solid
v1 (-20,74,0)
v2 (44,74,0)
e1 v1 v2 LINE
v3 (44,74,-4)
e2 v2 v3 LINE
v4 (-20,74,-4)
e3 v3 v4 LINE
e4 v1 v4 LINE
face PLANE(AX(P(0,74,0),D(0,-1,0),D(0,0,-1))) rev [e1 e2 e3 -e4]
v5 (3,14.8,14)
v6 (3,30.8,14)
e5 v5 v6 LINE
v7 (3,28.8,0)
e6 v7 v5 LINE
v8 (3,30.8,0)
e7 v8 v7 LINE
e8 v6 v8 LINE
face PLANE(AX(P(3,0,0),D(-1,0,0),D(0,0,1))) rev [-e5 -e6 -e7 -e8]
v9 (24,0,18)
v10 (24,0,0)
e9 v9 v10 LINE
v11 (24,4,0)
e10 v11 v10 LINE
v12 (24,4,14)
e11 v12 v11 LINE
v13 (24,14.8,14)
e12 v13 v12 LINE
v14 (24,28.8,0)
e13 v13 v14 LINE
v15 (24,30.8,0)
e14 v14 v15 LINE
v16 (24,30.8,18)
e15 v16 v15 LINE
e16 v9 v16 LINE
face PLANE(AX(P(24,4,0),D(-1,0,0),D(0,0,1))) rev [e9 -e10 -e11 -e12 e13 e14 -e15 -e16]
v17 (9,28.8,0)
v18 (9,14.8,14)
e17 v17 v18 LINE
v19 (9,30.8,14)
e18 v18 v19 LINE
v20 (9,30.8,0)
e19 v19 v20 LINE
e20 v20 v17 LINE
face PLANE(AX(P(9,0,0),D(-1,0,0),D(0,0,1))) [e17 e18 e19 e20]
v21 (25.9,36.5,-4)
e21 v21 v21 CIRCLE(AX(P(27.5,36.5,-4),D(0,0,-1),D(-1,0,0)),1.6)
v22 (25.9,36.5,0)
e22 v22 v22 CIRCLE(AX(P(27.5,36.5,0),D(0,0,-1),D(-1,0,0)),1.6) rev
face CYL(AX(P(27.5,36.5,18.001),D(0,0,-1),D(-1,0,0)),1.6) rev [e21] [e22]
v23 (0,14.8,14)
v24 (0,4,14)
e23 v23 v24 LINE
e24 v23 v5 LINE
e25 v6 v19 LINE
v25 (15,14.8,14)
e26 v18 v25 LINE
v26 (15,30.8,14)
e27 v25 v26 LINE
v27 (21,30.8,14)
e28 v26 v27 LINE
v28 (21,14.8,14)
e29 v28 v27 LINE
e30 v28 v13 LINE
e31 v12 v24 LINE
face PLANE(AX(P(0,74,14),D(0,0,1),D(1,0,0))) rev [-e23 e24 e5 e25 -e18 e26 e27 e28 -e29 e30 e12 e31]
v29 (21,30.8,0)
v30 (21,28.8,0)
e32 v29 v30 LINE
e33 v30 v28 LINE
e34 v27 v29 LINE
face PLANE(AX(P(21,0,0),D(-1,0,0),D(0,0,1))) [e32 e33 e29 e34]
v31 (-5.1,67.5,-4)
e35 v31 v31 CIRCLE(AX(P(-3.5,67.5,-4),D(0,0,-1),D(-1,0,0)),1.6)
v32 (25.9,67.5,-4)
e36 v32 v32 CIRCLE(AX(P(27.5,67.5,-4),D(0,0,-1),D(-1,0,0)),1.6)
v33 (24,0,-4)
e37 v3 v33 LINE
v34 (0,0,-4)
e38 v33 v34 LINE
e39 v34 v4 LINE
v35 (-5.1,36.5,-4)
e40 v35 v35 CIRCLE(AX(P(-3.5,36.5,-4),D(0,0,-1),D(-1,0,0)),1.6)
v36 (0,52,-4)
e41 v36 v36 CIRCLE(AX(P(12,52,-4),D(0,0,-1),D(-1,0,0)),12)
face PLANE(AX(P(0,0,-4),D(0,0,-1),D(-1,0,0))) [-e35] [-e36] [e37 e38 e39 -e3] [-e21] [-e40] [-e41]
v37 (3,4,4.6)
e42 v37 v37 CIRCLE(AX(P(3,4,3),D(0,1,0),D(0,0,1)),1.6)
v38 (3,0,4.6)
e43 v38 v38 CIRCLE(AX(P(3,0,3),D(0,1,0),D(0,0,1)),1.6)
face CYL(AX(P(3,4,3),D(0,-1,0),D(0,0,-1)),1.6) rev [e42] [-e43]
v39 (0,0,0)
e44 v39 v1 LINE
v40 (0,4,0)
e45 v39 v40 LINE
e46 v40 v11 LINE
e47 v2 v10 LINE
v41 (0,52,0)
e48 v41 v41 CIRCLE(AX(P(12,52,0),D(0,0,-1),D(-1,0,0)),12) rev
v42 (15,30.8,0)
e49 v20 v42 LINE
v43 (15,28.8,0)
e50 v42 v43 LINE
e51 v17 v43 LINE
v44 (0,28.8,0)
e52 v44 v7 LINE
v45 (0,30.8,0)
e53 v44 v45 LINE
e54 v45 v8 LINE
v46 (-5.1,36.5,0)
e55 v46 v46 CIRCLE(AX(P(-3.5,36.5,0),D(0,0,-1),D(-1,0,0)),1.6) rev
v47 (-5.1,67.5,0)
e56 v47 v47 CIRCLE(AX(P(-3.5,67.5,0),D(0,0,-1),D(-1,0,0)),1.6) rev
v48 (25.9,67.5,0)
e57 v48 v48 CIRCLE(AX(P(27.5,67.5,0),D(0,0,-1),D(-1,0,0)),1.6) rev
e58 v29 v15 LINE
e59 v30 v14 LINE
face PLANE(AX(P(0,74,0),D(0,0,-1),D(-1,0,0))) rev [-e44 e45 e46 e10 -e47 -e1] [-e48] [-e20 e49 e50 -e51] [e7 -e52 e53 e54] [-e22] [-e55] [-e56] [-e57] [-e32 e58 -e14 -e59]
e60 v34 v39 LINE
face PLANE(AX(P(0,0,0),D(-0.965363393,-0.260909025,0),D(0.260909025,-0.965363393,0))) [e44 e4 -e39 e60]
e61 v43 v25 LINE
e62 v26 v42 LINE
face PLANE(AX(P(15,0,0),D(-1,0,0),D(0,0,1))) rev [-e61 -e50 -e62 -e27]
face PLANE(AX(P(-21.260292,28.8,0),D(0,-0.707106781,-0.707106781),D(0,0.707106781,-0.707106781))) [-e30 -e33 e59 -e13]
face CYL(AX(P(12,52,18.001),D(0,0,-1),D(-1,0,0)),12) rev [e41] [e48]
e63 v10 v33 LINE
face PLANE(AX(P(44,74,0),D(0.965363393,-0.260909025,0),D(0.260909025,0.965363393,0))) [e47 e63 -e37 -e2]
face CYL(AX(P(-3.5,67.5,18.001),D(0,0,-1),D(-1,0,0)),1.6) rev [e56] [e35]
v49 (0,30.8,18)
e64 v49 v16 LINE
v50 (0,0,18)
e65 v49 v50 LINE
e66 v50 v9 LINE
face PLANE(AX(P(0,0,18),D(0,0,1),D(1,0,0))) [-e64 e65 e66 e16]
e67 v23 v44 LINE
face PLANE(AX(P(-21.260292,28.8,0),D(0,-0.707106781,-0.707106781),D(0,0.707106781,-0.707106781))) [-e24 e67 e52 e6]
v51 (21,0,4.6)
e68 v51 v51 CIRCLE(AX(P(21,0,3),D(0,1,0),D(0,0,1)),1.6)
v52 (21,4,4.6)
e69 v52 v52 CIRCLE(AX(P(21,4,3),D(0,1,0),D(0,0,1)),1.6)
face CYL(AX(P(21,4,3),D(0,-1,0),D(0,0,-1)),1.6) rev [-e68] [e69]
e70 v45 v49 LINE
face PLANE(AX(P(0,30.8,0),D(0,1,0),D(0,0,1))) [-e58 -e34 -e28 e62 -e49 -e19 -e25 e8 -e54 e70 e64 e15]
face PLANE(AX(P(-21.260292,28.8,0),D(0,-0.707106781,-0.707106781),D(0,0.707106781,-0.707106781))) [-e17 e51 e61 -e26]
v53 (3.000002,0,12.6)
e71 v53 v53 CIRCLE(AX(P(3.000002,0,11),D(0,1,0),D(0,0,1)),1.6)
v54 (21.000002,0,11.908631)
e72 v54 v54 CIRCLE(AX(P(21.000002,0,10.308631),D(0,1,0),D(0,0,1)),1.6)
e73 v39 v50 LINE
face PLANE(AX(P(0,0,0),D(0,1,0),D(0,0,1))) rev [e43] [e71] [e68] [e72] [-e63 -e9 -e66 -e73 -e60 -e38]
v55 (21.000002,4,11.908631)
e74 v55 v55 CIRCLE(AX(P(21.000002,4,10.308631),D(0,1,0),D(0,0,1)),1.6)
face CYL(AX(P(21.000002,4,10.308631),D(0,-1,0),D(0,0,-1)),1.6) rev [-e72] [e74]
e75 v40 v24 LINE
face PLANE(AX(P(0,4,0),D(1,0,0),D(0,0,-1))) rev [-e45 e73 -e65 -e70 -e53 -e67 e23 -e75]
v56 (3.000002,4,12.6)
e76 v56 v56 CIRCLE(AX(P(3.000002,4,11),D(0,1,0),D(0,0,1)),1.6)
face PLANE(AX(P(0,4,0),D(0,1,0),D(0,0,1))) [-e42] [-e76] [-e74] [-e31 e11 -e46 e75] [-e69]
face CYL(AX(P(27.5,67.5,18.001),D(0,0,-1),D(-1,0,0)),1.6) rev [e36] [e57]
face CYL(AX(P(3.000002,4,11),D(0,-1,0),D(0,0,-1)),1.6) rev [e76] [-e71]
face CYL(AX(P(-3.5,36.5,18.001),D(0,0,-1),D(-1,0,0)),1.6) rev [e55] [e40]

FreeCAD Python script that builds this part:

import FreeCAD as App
import Part
import Sketcher


def add_polygon(sketch, points):
    """Adds a closed chain of lines whose ends are joined by coincident constraints."""
    first, n = sketch.GeometryCount, len(points)
    for a, b in zip(points, points[1:] + points[:1]):
        sketch.addGeometry(Part.LineSegment(App.Vector(*a, 0), App.Vector(*b, 0)), False)
    for i in range(n):
        sketch.addConstraint(Sketcher.Constraint("Coincident", first + i, 2, first + (i + 1) % n, 1))

doc = App.newDocument("Part")
params = doc.addObject("Spreadsheet::Sheet", "Params")
for row, (alias, value) in enumerate([
    ("sketch1_diameter", "3.2 mm"),
    ("sketch1_width", "24 mm"),
    ("sketch1_height", "14 mm"),
    ("pad1_length", "4 mm"),
    ("sketch2_width", "24 mm"),
    ("sketch2_height", "4 mm"),
    ("pad2_length", "4 mm"),
    ("sketch3_width", "24 mm"),
    ("sketch3_height", "4 mm"),
    ("pad3_length", "70 mm"),
    ("sketch4_width", "24 mm"),
    ("sketch4_height", "4 mm"),
    ("pad4_length", "4 mm"),
    ("sketch5_width", "24 mm"),
    ("sketch5_height", "4 mm"),
    ("pad5_length", "70 mm"),
    ("sketch6_width", "64 mm"),
    ("sketch6_width2", "24 mm"),
    ("pad6_length", "4 mm"),
    ("sketch7_width", "24 mm"),
    ("sketch7_height", "4 mm"),
    ("pocket1_length", "43.2 mm"),
    ("sketch8_width", "16 mm"),
    ("sketch8_width2", "2 mm"),
    ("sketch8_height", "14 mm"),
    ("pad7_length", "24 mm"),
    ("sketch9_width", "16 mm"),
    ("sketch9_width2", "2 mm"),
    ("sketch9_height", "14 mm"),
    ("pocket2_length", "3 mm"),
    ("pocket2_length2", "3 mm"),
    ("sketch10_width", "16 mm"),
    ("sketch10_width2", "2 mm"),
    ("sketch10_height", "14 mm"),
    ("pocket3_length", "3 mm"),
    ("pocket3_length2", "3 mm"),
    ("sketch11_diameter", "24 mm"),
    ("sketch12_diameter", "3.2 mm"),
    ("sketch13_diameter", "3.2 mm"),
    ("sketch14_diameter", "3.2 mm"),
    ("sketch15_diameter", "3.2 mm"),
], start=1):
    params.set(f"A{row}", alias)
    params.set(f"B{row}", "=" + value)
    params.setAlias(f"B{row}", alias)

body = doc.addObject("PartDesign::Body", "Body")

# Sketch on XZ plane
sketch1 = body.newObject("Sketcher::SketchObject", "Sketch")
sketch1.AttachmentSupport = (doc.getObject("XZ_Plane"), [""])
sketch1.MapMode = "FlatFace"
add_polygon(sketch1, [(0, 0), (0, 14), (24, 14), (24, 0)])  # lines 0-3
sketch1.addGeometry(Part.Circle(App.Vector(3, 11, 0), App.Vector(0, 0, 1), 1.6), False)  # 4
sketch1.addGeometry(Part.Circle(App.Vector(21, 10.3, 0), App.Vector(0, 0, 1), 1.6), False)  # 5
sketch1.addGeometry(Part.Circle(App.Vector(3, 3, 0), App.Vector(0, 0, 1), 1.6), False)  # 6
sketch1.addGeometry(Part.Circle(App.Vector(21, 3, 0), App.Vector(0, 0, 1), 1.6), False)  # 7
sketch1.addConstraint([
    Sketcher.Constraint("Vertical", 0),
    Sketcher.Constraint("Horizontal", 1),
    Sketcher.Constraint("Vertical", 2),
    Sketcher.Constraint("Horizontal", 3),
    Sketcher.Constraint("Coincident", 3, 2, -1, 1),
    Sketcher.Constraint("Equal", 4, 5),
    Sketcher.Constraint("Equal", 5, 6),
    Sketcher.Constraint("Equal", 6, 7),
    Sketcher.Constraint("Horizontal", 6, 3, 7, 3),
    Sketcher.Constraint("Diameter", 4, 3.2),
    Sketcher.Constraint("DistanceX", 1, 1, 1, 2, 24.0),
    Sketcher.Constraint("DistanceY", 0, 1, 0, 2, 14.0),
    Sketcher.Constraint("DistanceY", -1, 1, 4, 3, 11.0),
    Sketcher.Constraint("DistanceX", -1, 1, 6, 3, 3.0),
    Sketcher.Constraint("DistanceY", -1, 1, 6, 3, 3.0),
    Sketcher.Constraint("DistanceX", -1, 1, 7, 3, 21.0),
    Sketcher.Constraint("DistanceX", 4, 3, 5, 3, 18.0),
    Sketcher.Constraint("DistanceY", -1, 1, 5, 3, 10.308631),
    Sketcher.Constraint("DistanceX", -1, 1, 4, 3, 3.000002),
])
sketch1.setExpression("Constraints[13]", "Params.sketch1_diameter")
sketch1.setExpression("Constraints[14]", "Params.sketch1_width")
sketch1.setExpression("Constraints[15]", "Params.sketch1_height")
pad1 = body.newObject("PartDesign::Pad", "Pad")
pad1.Profile = sketch1
pad1.setExpression("Length", "Params.pad1_length")
pad1.Reversed = True

# Sketch on XY plane
sketch2 = body.newObject("Sketcher::SketchObject", "Sketch001")
sketch2.AttachmentSupport = (doc.getObject("XY_Plane"), [""])
sketch2.MapMode = "FlatFace"
add_polygon(sketch2, [(24, 4), (24, 0), (0, 0), (0, 4)])  # lines 0-3
sketch2.addConstraint([
    Sketcher.Constraint("Vertical", 0),
    Sketcher.Constraint("Horizontal", 1),
    Sketcher.Constraint("Vertical", 2),
    Sketcher.Constraint("Horizontal", 3),
    Sketcher.Constraint("Coincident", 1, 2, -1, 1),
    Sketcher.Constraint("DistanceX", 1, 2, 1, 1, 24.0),
    Sketcher.Constraint("DistanceY", 0, 2, 0, 1, 4.0),
])
sketch2.setExpression("Constraints[9]", "Params.sketch2_width")
sketch2.setExpression("Constraints[10]", "Params.sketch2_height")
pad2 = body.newObject("PartDesign::Pad", "Pad001")
pad2.Profile = sketch2
pad2.setExpression("Length", "Params.pad2_length")
pad2.Reversed = True

# Sketch on XZ plane
sketch3 = body.newObject("Sketcher::SketchObject", "Sketch002")
sketch3.AttachmentSupport = (doc.getObject("XZ_Plane"), [""])
sketch3.MapMode = "FlatFace"
sketch3.AttachmentOffset = App.Placement(App.Vector(0, 0, -4), App.Rotation())
add_polygon(sketch3, [(0, -4), (0, 0), (24, 0), (24, -4)])  # lines 0-3
sketch3.addConstraint([
    Sketcher.Constraint("Vertical", 0),
    Sketcher.Constraint("Horizontal", 1),
    Sketcher.Constraint("Vertical", 2),
    Sketcher.Constraint("Horizontal", 3),
    Sketcher.Constraint("Coincident", 0, 2, -1, 1),
    Sketcher.Constraint("DistanceX", 1, 1, 1, 2, 24.0),
    Sketcher.Constraint("DistanceY", 0, 1, 0, 2, 4.0),
])
sketch3.setExpression("Constraints[9]", "Params.sketch3_width")
sketch3.setExpression("Constraints[10]", "Params.sketch3_height")
pad3 = body.newObject("PartDesign::Pad", "Pad002")
pad3.Profile = sketch3
pad3.setExpression("Length", "Params.pad3_length")
pad3.Reversed = True

# Sketch on XY plane
sketch4 = body.newObject("Sketcher::SketchObject", "Sketch003")
sketch4.AttachmentSupport = (doc.getObject("XY_Plane"), [""])
sketch4.MapMode = "FlatFace"
sketch4.AttachmentOffset = App.Placement(App.Vector(0, 0, 14), App.Rotation())
add_polygon(sketch4, [(0, 4), (0, 0), (24, 0), (24, 4)])  # lines 0-3
sketch4.addConstraint([
    Sketcher.Constraint("Vertical", 0),
    Sketcher.Constraint("Horizontal", 1),
    Sketcher.Constraint("Vertical", 2),
    Sketcher.Constraint("Horizontal", 3),
    Sketcher.Constraint("Coincident", 0, 2, -1, 1),
    Sketcher.Constraint("DistanceX", 1, 1, 1, 2, 24.0),
    Sketcher.Constraint("DistanceY", 0, 2, 0, 1, 4.0),
])
sketch4.setExpression("Constraints[9]", "Params.sketch4_width")
sketch4.setExpression("Constraints[10]", "Params.sketch4_height")
pad4 = body.newObject("PartDesign::Pad", "Pad003")
pad4.Profile = sketch4
pad4.setExpression("Length", "Params.pad4_length")

# Sketch on XZ plane
sketch5 = body.newObject("Sketcher::SketchObject", "Sketch004")
sketch5.AttachmentSupport = (doc.getObject("XZ_Plane"), [""])
sketch5.MapMode = "FlatFace"
sketch5.AttachmentOffset = App.Placement(App.Vector(0, 0, -4), App.Rotation())
add_polygon(sketch5, [(0, 14), (0, 18), (24, 18), (24, 14)])  # lines 0-3
sketch5.addConstraint([
    Sketcher.Constraint("Vertical", 0),
    Sketcher.Constraint("Horizontal", 1),
    Sketcher.Constraint("Vertical", 2),
    Sketcher.Constraint("Horizontal", 3),
    Sketcher.Constraint("PointOnObject", 0, 2, -2),
    Sketcher.Constraint("DistanceX", 1, 1, 1, 2, 24.0),
    Sketcher.Constraint("DistanceY", 0, 1, 0, 2, 4.0),
    Sketcher.Constraint("DistanceY", -1, 1, 0, 2, 18.0),
])
sketch5.setExpression("Constraints[9]", "Params.sketch5_width")
sketch5.setExpression("Constraints[10]", "Params.sketch5_height")
pad5 = body.newObject("PartDesign::Pad", "Pad004")
pad5.Profile = sketch5
pad5.setExpression("Length", "Params.pad5_length")
pad5.Reversed = True

# Sketch on XY plane
sketch6 = body.newObject("Sketcher::SketchObject", "Sketch005")
sketch6.AttachmentSupport = (doc.getObject("XY_Plane"), [""])
sketch6.MapMode = "FlatFace"
sketch6.AttachmentOffset = App.Placement(App.Vector(0, 0, -4), App.Rotation())
add_polygon(sketch6, [(-20, 74), (44, 74), (24, 0), (0, 0)])  # lines 0-3
sketch6.addConstraint([
    Sketcher.Constraint("Horizontal", 0),
    Sketcher.Constraint("Horizontal", 2),
    Sketcher.Constraint("Coincident", 2, 2, -1, 1),
    Sketcher.Constraint("Equal", 1, 3),
    Sketcher.Constraint("DistanceX", 0, 1, 0, 2, 64.0),
    Sketcher.Constraint("DistanceX", 2, 2, 2, 1, 24.0),
    Sketcher.Constraint("DistanceY", -1, 1, 0, 2, 74.0),
])
sketch6.setExpression("Constraints[8]", "Params.sketch6_width")
sketch6.setExpression("Constraints[9]", "Params.sketch6_width2")
pad6 = body.newObject("PartDesign::Pad", "Pad005")
pad6.Profile = sketch6
pad6.setExpression("Length", "Params.pad6_length")

# Sketch on XZ plane
sketch7 = body.newObject("Sketcher::SketchObject", "Sketch006")
sketch7.AttachmentSupport = (doc.getObject("XZ_Plane"), [""])
sketch7.MapMode = "FlatFace"
sketch7.AttachmentOffset = App.Placement(App.Vector(0, 0, -74), App.Rotation())
add_polygon(sketch7, [(0, 14), (0, 18), (24, 18), (24, 14)])  # lines 0-3
sketch7.addConstraint([
    Sketcher.Constraint("Vertical", 0),
    Sketcher.Constraint("Horizontal", 1),
    Sketcher.Constraint("Vertical", 2),
    Sketcher.Constraint("Horizontal", 3),
    Sketcher.Constraint("PointOnObject", 0, 2, -2),
    Sketcher.Constraint("DistanceX", 1, 1, 1, 2, 24.0),
    Sketcher.Constraint("DistanceY", 0, 1, 0, 2, 4.0),
    Sketcher.Constraint("DistanceY", -1, 1, 0, 2, 18.0),
])
sketch7.setExpression("Constraints[9]", "Params.sketch7_width")
sketch7.setExpression("Constraints[10]", "Params.sketch7_height")
pocket1 = body.newObject("PartDesign::Pocket", "Pocket")
pocket1.Profile = sketch7
pocket1.setExpression("Length", "Params.pocket1_length")
pocket1.Reversed = True

# Sketch on YZ plane
sketch8 = body.newObject("Sketcher::SketchObject", "Sketch007")
sketch8.AttachmentSupport = (doc.getObject("YZ_Plane"), [""])
sketch8.MapMode = "FlatFace"
sketch8.AttachmentOffset = App.Placement(App.Vector(0, 0, 24), App.Rotation())
add_polygon(sketch8, [(30.8, 14), (14.8, 14), (28.8, 0), (30.8, 0)])  # lines 0-3
sketch8.addConstraint([
    Sketcher.Constraint("Horizontal", 0),
    Sketcher.Constraint("Horizontal", 2),
    Sketcher.Constraint("Vertical", 3),
    Sketcher.Constraint("PointOnObject", 1, 2, -1),
    Sketcher.Constraint("DistanceX", 0, 2, 0, 1, 16.0),
    Sketcher.Constraint("DistanceX", 2, 1, 2, 2, 2.0),
    Sketcher.Constraint("DistanceY", 3, 1, 3, 2, 14.0),
    Sketcher.Constraint("DistanceX", -1, 1, 0, 2, 14.8),
])
sketch8.setExpression("Constraints[8]", "Params.sketch8_width")
sketch8.setExpression("Constraints[9]", "Params.sketch8_width2")
sketch8.setExpression("Constraints[10]", "Params.sketch8_height")
pad7 = body.newObject("PartDesign::Pad", "Pad006")
pad7.Profile = sketch8
pad7.setExpression("Length", "Params.pad7_length")
pad7.Reversed = True

# Sketch on YZ plane
sketch9 = body.newObject("Sketcher::SketchObject", "Sketch008")
sketch9.AttachmentSupport = (doc.getObject("YZ_Plane"), [""])
sketch9.MapMode = "FlatFace"
sketch9.AttachmentOffset = App.Placement(App.Vector(0, 0, 6), App.Rotation())
add_polygon(sketch9, [(14.8, 14), (30.8, 14), (30.8, 0), (28.8, 0)])  # lines 0-3
sketch9.addConstraint([
    Sketcher.Constraint("Horizontal", 0),
    Sketcher.Constraint("Vertical", 1),
    Sketcher.Constraint("Horizontal", 2),
    Sketcher.Constraint("PointOnObject", 1, 2, -1),
    Sketcher.Constraint("DistanceX", 0, 1, 0, 2, 16.0),
    Sketcher.Constraint("DistanceX", 2, 2, 2, 1, 2.0),
    Sketcher.Constraint("DistanceY", 1, 2, 1, 1, 14.0),
    Sketcher.Constraint("DistanceX", -1, 1, 0, 2, 30.8),
])
sketch9.setExpression("Constraints[8]", "Params.sketch9_width")
sketch9.setExpression("Constraints[9]", "Params.sketch9_width2")
sketch9.setExpression("Constraints[10]", "Params.sketch9_height")
pocket2 = body.newObject("PartDesign::Pocket", "Pocket001")
pocket2.Profile = sketch9
pocket2.Type = "TwoLengths"
pocket2.setExpression("Length", "Params.pocket2_length")
pocket2.setExpression("Length2", "Params.pocket2_length2")

# Sketch on YZ plane
sketch10 = body.newObject("Sketcher::SketchObject", "Sketch009")
sketch10.AttachmentSupport = (doc.getObject("YZ_Plane"), [""])
sketch10.MapMode = "FlatFace"
sketch10.AttachmentOffset = App.Placement(App.Vector(0, 0, 18), App.Rotation())
add_polygon(sketch10, [(14.8, 14), (30.8, 14), (30.8, 0), (28.8, 0)])  # lines 0-3
sketch10.addConstraint([
    Sketcher.Constraint("Horizontal", 0),
    Sketcher.Constraint("Vertical", 1),
    Sketcher.Constraint("Horizontal", 2),
    Sketcher.Constraint("PointOnObject", 1, 2, -1),
    Sketcher.Constraint("DistanceX", 0, 1, 0, 2, 16.0),
    Sketcher.Constraint("DistanceX", 2, 2, 2, 1, 2.0),
    Sketcher.Constraint("DistanceY", 1, 2, 1, 1, 14.0),
    Sketcher.Constraint("DistanceX", -1, 1, 0, 2, 30.8),
])
sketch10.setExpression("Constraints[8]", "Params.sketch10_width")
sketch10.setExpression("Constraints[9]", "Params.sketch10_width2")
sketch10.setExpression("Constraints[10]", "Params.sketch10_height")
pocket3 = body.newObject("PartDesign::Pocket", "Pocket002")
pocket3.Profile = sketch10
pocket3.Type = "TwoLengths"
pocket3.setExpression("Length", "Params.pocket3_length")
pocket3.setExpression("Length2", "Params.pocket3_length2")

# Sketch on XY plane
sketch11 = body.newObject("Sketcher::SketchObject", "Sketch010")
sketch11.AttachmentSupport = (doc.getObject("XY_Plane"), [""])
sketch11.MapMode = "FlatFace"
sketch11.AttachmentOffset = App.Placement(App.Vector(0, 0, -4), App.Rotation())
sketch11.addGeometry(Part.Circle(App.Vector(12, 52, 0), App.Vector(0, 0, 1), 12), False)
sketch11.addConstraint([
    Sketcher.Constraint("Diameter", 0, 24.0),
    Sketcher.Constraint("DistanceX", -1, 1, 0, 3, 12.0),
    Sketcher.Constraint("DistanceY", -1, 1, 0, 3, 52.0),
])
sketch11.setExpression("Constraints[0]", "Params.sketch11_diameter")
pocket4 = body.newObject("PartDesign::Pocket", "Pocket003")
pocket4.Profile = sketch11
pocket4.Type = "UpToFirst"
pocket4.Reversed = True

# Sketch on XY plane
sketch12 = body.newObject("Sketcher::SketchObject", "Sketch011")
sketch12.AttachmentSupport = (doc.getObject("XY_Plane"), [""])
sketch12.MapMode = "FlatFace"
sketch12.AttachmentOffset = App.Placement(App.Vector(0, 0, -4), App.Rotation())
sketch12.addGeometry(Part.Circle(App.Vector(27.5, 67.5, 0), App.Vector(0, 0, 1), 1.6), False)
sketch12.addConstraint([
    Sketcher.Constraint("Diameter", 0, 3.2),
    Sketcher.Constraint("DistanceX", -1, 1, 0, 3, 27.5),
    Sketcher.Constraint("DistanceY", -1, 1, 0, 3, 67.5),
])
sketch12.setExpression("Constraints[0]", "Params.sketch12_diameter")
pocket5 = body.newObject("PartDesign::Pocket", "Pocket004")
pocket5.Profile = sketch12
pocket5.Type = "UpToFirst"
pocket5.Reversed = True

# Sketch on XY plane
sketch13 = body.newObject("Sketcher::SketchObject", "Sketch012")
sketch13.AttachmentSupport = (doc.getObject("XY_Plane"), [""])
sketch13.MapMode = "FlatFace"
sketch13.AttachmentOffset = App.Placement(App.Vector(0, 0, -4), App.Rotation())
sketch13.addGeometry(Part.Circle(App.Vector(-3.5, 67.5, 0), App.Vector(0, 0, 1), 1.6), False)
sketch13.addConstraint([
    Sketcher.Constraint("Diameter", 0, 3.2),
    Sketcher.Constraint("DistanceX", 0, 3, -1, 1, 3.5),
    Sketcher.Constraint("DistanceY", -1, 1, 0, 3, 67.5),
])
sketch13.setExpression("Constraints[0]", "Params.sketch13_diameter")
pocket6 = body.newObject("PartDesign::Pocket", "Pocket005")
pocket6.Profile = sketch13
pocket6.Type = "UpToFirst"
pocket6.Reversed = True

# Sketch on XY plane
sketch14 = body.newObject("Sketcher::SketchObject", "Sketch013")
sketch14.AttachmentSupport = (doc.getObject("XY_Plane"), [""])
sketch14.MapMode = "FlatFace"
sketch14.AttachmentOffset = App.Placement(App.Vector(0, 0, -4), App.Rotation())
sketch14.addGeometry(Part.Circle(App.Vector(-3.5, 36.5, 0), App.Vector(0, 0, 1), 1.6), False)
sketch14.addConstraint([
    Sketcher.Constraint("Diameter", 0, 3.2),
    Sketcher.Constraint("DistanceX", 0, 3, -1, 1, 3.5),
    Sketcher.Constraint("DistanceY", -1, 1, 0, 3, 36.5),
])
sketch14.setExpression("Constraints[0]", "Params.sketch14_diameter")
pocket7 = body.newObject("PartDesign::Pocket", "Pocket006")
pocket7.Profile = sketch14
pocket7.Type = "UpToFirst"
pocket7.Reversed = True

# Sketch on XY plane
sketch15 = body.newObject("Sketcher::SketchObject", "Sketch014")
sketch15.AttachmentSupport = (doc.getObject("XY_Plane"), [""])
sketch15.MapMode = "FlatFace"
sketch15.AttachmentOffset = App.Placement(App.Vector(0, 0, -4), App.Rotation())
sketch15.addGeometry(Part.Circle(App.Vector(27.5, 36.5, 0), App.Vector(0, 0, 1), 1.6), False)
sketch15.addConstraint([
    Sketcher.Constraint("Diameter", 0, 3.2),
    Sketcher.Constraint("DistanceX", -1, 1, 0, 3, 27.5),
    Sketcher.Constraint("DistanceY", -1, 1, 0, 3, 36.5),
])
sketch15.setExpression("Constraints[0]", "Params.sketch15_diameter")
pocket8 = body.newObject("PartDesign::Pocket", "Pocket007")
pocket8.Profile = sketch15
pocket8.Type = "UpToFirst"
pocket8.Reversed = True

doc.recompute()
